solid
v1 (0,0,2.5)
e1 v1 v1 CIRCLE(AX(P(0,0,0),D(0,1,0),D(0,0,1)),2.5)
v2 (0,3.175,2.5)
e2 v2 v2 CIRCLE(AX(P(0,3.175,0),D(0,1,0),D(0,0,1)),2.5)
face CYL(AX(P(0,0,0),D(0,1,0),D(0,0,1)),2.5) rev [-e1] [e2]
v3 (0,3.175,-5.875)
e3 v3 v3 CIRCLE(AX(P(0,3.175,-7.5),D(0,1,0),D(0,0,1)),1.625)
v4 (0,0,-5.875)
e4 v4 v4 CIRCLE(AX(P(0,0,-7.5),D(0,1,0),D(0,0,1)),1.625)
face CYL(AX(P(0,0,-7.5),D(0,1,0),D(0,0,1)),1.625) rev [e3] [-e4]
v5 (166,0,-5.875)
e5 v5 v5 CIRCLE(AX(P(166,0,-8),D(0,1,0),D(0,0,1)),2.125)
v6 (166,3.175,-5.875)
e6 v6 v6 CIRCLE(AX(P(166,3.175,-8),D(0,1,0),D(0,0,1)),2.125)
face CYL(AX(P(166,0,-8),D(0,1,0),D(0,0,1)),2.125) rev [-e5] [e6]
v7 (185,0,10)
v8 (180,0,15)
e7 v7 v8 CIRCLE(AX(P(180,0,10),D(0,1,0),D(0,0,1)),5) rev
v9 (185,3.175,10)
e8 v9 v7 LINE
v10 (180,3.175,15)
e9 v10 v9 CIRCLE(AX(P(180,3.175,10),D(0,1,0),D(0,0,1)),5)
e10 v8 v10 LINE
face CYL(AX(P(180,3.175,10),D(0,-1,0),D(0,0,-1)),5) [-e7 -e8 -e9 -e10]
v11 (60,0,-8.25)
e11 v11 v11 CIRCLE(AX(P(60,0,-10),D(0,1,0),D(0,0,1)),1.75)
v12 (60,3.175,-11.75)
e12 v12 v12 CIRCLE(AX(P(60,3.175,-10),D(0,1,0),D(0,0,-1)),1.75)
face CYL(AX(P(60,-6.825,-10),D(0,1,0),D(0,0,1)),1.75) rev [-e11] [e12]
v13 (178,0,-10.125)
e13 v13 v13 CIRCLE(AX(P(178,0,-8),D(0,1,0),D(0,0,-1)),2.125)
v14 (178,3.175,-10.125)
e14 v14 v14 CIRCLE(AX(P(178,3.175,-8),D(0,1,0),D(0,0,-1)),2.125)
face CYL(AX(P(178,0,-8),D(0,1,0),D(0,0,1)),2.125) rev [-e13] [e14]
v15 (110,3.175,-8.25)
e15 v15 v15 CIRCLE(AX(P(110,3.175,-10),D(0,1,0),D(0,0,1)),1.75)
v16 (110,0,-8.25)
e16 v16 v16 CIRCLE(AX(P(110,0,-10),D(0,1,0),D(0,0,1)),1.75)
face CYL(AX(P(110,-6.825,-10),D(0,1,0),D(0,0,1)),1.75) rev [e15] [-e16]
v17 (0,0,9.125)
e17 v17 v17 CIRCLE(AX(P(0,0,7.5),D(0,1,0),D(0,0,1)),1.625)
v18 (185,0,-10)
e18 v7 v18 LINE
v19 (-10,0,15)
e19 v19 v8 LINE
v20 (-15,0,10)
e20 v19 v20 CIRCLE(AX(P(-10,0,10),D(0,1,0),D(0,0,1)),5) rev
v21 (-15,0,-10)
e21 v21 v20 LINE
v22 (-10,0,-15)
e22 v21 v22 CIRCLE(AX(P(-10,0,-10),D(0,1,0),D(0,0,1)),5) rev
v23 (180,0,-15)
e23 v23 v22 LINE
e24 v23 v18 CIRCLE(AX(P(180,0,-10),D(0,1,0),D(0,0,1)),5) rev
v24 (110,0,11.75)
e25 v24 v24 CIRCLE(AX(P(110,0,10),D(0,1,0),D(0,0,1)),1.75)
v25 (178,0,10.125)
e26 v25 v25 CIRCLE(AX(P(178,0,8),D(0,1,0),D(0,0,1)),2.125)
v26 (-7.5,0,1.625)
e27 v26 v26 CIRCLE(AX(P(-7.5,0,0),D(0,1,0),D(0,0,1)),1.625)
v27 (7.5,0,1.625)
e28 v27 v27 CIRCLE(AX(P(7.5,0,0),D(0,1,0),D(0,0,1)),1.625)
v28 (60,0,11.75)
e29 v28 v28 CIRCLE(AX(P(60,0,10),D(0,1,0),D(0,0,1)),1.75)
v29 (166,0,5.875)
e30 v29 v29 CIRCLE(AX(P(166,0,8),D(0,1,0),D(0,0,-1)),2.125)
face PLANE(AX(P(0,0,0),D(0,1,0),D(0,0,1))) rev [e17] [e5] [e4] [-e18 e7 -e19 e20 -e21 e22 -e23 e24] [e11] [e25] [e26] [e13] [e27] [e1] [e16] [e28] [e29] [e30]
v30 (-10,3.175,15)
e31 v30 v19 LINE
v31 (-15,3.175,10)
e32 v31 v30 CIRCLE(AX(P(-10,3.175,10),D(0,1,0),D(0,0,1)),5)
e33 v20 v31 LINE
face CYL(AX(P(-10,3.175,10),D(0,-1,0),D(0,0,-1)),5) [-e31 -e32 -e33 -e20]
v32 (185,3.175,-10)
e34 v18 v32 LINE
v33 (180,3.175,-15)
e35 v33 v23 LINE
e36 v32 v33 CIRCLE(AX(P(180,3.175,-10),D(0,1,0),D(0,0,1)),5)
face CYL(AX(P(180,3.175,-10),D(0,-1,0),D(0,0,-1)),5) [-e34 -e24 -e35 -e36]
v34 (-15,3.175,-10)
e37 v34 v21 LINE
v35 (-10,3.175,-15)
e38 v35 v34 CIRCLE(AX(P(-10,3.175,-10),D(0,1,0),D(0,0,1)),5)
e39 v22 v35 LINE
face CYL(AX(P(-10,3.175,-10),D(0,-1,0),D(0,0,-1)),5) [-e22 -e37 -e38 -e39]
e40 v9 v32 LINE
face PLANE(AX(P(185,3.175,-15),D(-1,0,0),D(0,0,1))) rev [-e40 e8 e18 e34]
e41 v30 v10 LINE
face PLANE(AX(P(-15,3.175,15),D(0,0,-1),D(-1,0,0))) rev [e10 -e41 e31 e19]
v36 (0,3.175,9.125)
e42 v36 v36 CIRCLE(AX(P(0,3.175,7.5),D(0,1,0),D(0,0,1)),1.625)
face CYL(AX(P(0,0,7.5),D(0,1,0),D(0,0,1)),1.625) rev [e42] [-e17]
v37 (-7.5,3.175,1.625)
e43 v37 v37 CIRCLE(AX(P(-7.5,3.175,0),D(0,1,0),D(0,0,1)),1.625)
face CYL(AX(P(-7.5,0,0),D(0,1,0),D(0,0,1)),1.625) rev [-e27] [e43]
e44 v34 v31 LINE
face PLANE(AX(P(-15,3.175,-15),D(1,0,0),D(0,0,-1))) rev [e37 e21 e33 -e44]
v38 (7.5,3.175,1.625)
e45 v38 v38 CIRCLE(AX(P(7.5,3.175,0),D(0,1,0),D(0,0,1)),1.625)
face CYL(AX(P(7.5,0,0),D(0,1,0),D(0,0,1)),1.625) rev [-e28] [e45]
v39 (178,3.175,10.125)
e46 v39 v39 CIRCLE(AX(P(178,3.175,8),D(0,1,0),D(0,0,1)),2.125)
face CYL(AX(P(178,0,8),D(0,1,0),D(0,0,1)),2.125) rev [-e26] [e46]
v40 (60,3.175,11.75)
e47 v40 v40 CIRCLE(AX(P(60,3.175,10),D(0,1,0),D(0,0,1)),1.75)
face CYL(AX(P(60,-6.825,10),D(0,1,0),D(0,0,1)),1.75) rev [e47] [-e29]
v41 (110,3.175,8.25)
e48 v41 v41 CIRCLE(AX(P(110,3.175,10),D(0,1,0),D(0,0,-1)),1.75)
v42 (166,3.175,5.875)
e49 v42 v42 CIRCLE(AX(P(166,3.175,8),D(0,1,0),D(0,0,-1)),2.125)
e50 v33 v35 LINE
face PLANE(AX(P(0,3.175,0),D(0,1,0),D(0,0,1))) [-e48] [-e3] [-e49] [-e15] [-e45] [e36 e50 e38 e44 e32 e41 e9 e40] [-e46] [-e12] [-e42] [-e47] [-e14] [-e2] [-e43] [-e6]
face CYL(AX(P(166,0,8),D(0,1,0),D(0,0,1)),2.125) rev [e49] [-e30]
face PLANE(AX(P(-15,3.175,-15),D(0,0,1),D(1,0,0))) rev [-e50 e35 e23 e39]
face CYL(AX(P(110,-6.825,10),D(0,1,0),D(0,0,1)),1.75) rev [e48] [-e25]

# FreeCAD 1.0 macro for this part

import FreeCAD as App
import Part
import Sketcher

V = App.Vector


def edges_at(feature, points):
    """Names of the edges that pass closest to the given points."""
    edges = feature.Shape.Edges
    near = lambda p: min(range(len(edges)), key=lambda i: edges[i].distToShape(Part.Vertex(*p))[0])
    return sorted({f"Edge{near(p) + 1}" for p in points})


def add_polygon(sketch, points):
    """Adds a closed chain of lines whose ends are joined by coincident constraints."""
    first, n = sketch.GeometryCount, len(points)
    for a, b in zip(points, points[1:] + points[:1]):
        sketch.addGeometry(Part.LineSegment(App.Vector(*a, 0), App.Vector(*b, 0)), False)
    for i in range(n):
        sketch.addConstraint(Sketcher.Constraint("Coincident", first + i, 2, first + (i + 1) % n, 1))

doc = App.newDocument("Part")
body = doc.addObject("PartDesign::Body", "Body")

sketch1 = doc.addObject("Sketcher::SketchObject", "Sketch")
body.addObject(sketch1)
sketch1.AttachmentSupport = (doc.XZ_Plane, [""])
sketch1.MapMode = "FlatFace"
add_polygon(sketch1, [(-15, -15), (-15, 15), (185, 15), (185, -15)])
sketch1.addConstraint(Sketcher.Constraint("Vertical", 0))
sketch1.addConstraint(Sketcher.Constraint("Horizontal", 1))
sketch1.addConstraint(Sketcher.Constraint("Vertical", 2))
sketch1.addConstraint(Sketcher.Constraint("Horizontal", 3))
sketch1.addConstraint(Sketcher.Constraint("DistanceX", 1, 1, 1, 2, 200.0))
sketch1.addConstraint(Sketcher.Constraint("DistanceY", 0, 1, 0, 2, 30.0))
sketch1.addConstraint(Sketcher.Constraint("DistanceX", 0, 2, -1, 1, 15.0))
sketch1.addConstraint(Sketcher.Constraint("DistanceY", -1, 1, 0, 2, 15.0))
pad1 = doc.addObject("PartDesign::Pad", "Pad")
body.addObject(pad1)
pad1.Profile = sketch1
pad1.Length = 3.175
pad1.Reversed = True
doc.recompute()

fillet = doc.addObject("PartDesign::Fillet", "Fillet")
body.addObject(fillet)
fillet.Base = (pad1, edges_at(pad1, [
    (-15, 1.587, -15),
    (185, 1.587, -15),
    (185, 1.587, 15),
    (-15, 1.587, 15),
]))
fillet.Radius = 5

sketch2 = doc.addObject("Sketcher::SketchObject", "Sketch001")
body.addObject(sketch2)
sketch2.AttachmentSupport = (doc.XZ_Plane, [""])
sketch2.MapMode = "FlatFace"
sketch2.AttachmentOffset = App.Placement(V(0, 0, -3.175), App.Rotation())
sketch2.addGeometry(Part.Circle(V(0, 0, 0), V(0, 0, 1), 2.5), False)
sketch2.addConstraint(Sketcher.Constraint("Coincident", 0, 3, -1, 1))
sketch2.addConstraint(Sketcher.Constraint("Diameter", 0, 5.0))
pocket1 = doc.addObject("PartDesign::Pocket", "Pocket")
body.addObject(pocket1)
pocket1.Profile = sketch2
pocket1.Type = "ThroughAll"
pocket1.Reversed = True

sketch3 = doc.addObject("Sketcher::SketchObject", "Sketch002")
body.addObject(sketch3)
sketch3.AttachmentSupport = (doc.XZ_Plane, [""])
sketch3.MapMode = "FlatFace"
sketch3.AttachmentOffset = App.Placement(V(0, 0, -3.175), App.Rotation())
sketch3.addGeometry(Part.Circle(V(7.5, 0, 0), V(0, 0, 1), 1.6), False)
sketch3.addGeometry(Part.Circle(V(0, 7.5, 0), V(0, 0, 1), 1.6), False)
sketch3.addGeometry(Part.Circle(V(-7.5, 0, 0), V(0, 0, 1), 1.6), False)
sketch3.addGeometry(Part.Circle(V(0, -7.5, 0), V(0, 0, 1), 1.6), False)
sketch3.addConstraint(Sketcher.Constraint("Equal", 0, 1))
sketch3.addConstraint(Sketcher.Constraint("Equal", 1, 2))
sketch3.addConstraint(Sketcher.Constraint("Equal", 2, 3))
sketch3.addConstraint(Sketcher.Constraint("Symmetric", 0, 3, 2, 3, -1, 1))
sketch3.addConstraint(Sketcher.Constraint("Symmetric", 1, 3, 3, 3, -1, 1))
sketch3.addConstraint(Sketcher.Constraint("PointOnObject", 0, 3, -1))
sketch3.addConstraint(Sketcher.Constraint("PointOnObject", 1, 3, -2))
sketch3.addConstraint(Sketcher.Constraint("Diameter", 0, 3.25))
sketch3.addConstraint(Sketcher.Constraint("DistanceX", 2, 3, 0, 3, 15.0))
sketch3.addConstraint(Sketcher.Constraint("DistanceY", 3, 3, 1, 3, 15.0))
pocket2 = doc.addObject("PartDesign::Pocket", "Pocket001")
body.addObject(pocket2)
pocket2.Profile = sketch3
pocket2.Type = "ThroughAll"
pocket2.Reversed = True

sketch4 = doc.addObject("Sketcher::SketchObject", "Sketch003")
body.addObject(sketch4)
sketch4.AttachmentSupport = (doc.XZ_Plane, [""])
sketch4.MapMode = "FlatFace"
sketch4.AttachmentOffset = App.Placement(V(0, 0, -3.175), App.Rotation())
sketch4.addGeometry(Part.Circle(V(60, 10, 0), V(0, 0, 1), 1.8), False)
sketch4.addGeometry(Part.Circle(V(110, 10, 0), V(0, 0, 1), 1.8), False)
sketch4.addGeometry(Part.Circle(V(110, -10, 0), V(0, 0, 1), 1.8), False)
sketch4.addGeometry(Part.Circle(V(60, -10, 0), V(0, 0, 1), 1.8), False)
sketch4.addConstraint(Sketcher.Constraint("Equal", 0, 1))
sketch4.addConstraint(Sketcher.Constraint("Equal", 1, 2))
sketch4.addConstraint(Sketcher.Constraint("Equal", 2, 3))
sketch4.addConstraint(Sketcher.Constraint("Symmetric", 1, 3, 2, 3, -1))
sketch4.addConstraint(Sketcher.Constraint("Symmetric", 0, 3, 3, 3, -1))
sketch4.addConstraint(Sketcher.Constraint("Horizontal", 0, 3, 1, 3))
sketch4.addConstraint(Sketcher.Constraint("Diameter", 0, 3.5))
sketch4.addConstraint(Sketcher.Constraint("DistanceX", -1, 1, 0, 3, 60.0))
sketch4.addConstraint(Sketcher.Constraint("DistanceY", -1, 1, 0, 3, 10.0))
sketch4.addConstraint(Sketcher.Constraint("DistanceX", -1, 1, 1, 3, 110.0))
pocket3 = doc.addObject("PartDesign::Pocket", "Pocket002")
body.addObject(pocket3)
pocket3.Profile = sketch4
pocket3.Length = 10
pocket3.Reversed = True

sketch5 = doc.addObject("Sketcher::SketchObject", "Sketch004")
body.addObject(sketch5)
sketch5.AttachmentSupport = (doc.XZ_Plane, [""])
sketch5.MapMode = "FlatFace"
sketch5.AttachmentOffset = App.Placement(V(0, 0, -3.175), App.Rotation())
sketch5.addGeometry(Part.Circle(V(166, -8, 0), V(0, 0, 1), 2.1), False)
sketch5.addGeometry(Part.Circle(V(178, -8, 0), V(0, 0, 1), 2.1), False)
sketch5.addGeometry(Part.Circle(V(178, 8, 0), V(0, 0, 1), 2.1), False)
sketch5.addGeometry(Part.Circle(V(166, 8, 0), V(0, 0, 1), 2.1), False)
sketch5.addConstraint(Sketcher.Constraint("Equal", 0, 1))
sketch5.addConstraint(Sketcher.Constraint("Equal", 1, 2))
sketch5.addConstraint(Sketcher.Constraint("Equal", 2, 3))
sketch5.addConstraint(Sketcher.Constraint("Symmetric", 1, 3, 2, 3, -1))
sketch5.addConstraint(Sketcher.Constraint("Symmetric", 0, 3, 3, 3, -1))
sketch5.addConstraint(Sketcher.Constraint("Horizontal", 0, 3, 1, 3))
sketch5.addConstraint(Sketcher.Constraint("Diameter", 0, 4.25))
sketch5.addConstraint(Sketcher.Constraint("DistanceX", -1, 1, 0, 3, 166.0))
sketch5.addConstraint(Sketcher.Constraint("DistanceY", 0, 3, -1, 1, 8.0))
sketch5.addConstraint(Sketcher.Constraint("DistanceX", -1, 1, 1, 3, 178.0))
pocket4 = doc.addObject("PartDesign::Pocket", "Pocket003")
body.addObject(pocket4)
pocket4.Profile = sketch5
pocket4.Type = "ThroughAll"
pocket4.Reversed = True

doc.recompute()
